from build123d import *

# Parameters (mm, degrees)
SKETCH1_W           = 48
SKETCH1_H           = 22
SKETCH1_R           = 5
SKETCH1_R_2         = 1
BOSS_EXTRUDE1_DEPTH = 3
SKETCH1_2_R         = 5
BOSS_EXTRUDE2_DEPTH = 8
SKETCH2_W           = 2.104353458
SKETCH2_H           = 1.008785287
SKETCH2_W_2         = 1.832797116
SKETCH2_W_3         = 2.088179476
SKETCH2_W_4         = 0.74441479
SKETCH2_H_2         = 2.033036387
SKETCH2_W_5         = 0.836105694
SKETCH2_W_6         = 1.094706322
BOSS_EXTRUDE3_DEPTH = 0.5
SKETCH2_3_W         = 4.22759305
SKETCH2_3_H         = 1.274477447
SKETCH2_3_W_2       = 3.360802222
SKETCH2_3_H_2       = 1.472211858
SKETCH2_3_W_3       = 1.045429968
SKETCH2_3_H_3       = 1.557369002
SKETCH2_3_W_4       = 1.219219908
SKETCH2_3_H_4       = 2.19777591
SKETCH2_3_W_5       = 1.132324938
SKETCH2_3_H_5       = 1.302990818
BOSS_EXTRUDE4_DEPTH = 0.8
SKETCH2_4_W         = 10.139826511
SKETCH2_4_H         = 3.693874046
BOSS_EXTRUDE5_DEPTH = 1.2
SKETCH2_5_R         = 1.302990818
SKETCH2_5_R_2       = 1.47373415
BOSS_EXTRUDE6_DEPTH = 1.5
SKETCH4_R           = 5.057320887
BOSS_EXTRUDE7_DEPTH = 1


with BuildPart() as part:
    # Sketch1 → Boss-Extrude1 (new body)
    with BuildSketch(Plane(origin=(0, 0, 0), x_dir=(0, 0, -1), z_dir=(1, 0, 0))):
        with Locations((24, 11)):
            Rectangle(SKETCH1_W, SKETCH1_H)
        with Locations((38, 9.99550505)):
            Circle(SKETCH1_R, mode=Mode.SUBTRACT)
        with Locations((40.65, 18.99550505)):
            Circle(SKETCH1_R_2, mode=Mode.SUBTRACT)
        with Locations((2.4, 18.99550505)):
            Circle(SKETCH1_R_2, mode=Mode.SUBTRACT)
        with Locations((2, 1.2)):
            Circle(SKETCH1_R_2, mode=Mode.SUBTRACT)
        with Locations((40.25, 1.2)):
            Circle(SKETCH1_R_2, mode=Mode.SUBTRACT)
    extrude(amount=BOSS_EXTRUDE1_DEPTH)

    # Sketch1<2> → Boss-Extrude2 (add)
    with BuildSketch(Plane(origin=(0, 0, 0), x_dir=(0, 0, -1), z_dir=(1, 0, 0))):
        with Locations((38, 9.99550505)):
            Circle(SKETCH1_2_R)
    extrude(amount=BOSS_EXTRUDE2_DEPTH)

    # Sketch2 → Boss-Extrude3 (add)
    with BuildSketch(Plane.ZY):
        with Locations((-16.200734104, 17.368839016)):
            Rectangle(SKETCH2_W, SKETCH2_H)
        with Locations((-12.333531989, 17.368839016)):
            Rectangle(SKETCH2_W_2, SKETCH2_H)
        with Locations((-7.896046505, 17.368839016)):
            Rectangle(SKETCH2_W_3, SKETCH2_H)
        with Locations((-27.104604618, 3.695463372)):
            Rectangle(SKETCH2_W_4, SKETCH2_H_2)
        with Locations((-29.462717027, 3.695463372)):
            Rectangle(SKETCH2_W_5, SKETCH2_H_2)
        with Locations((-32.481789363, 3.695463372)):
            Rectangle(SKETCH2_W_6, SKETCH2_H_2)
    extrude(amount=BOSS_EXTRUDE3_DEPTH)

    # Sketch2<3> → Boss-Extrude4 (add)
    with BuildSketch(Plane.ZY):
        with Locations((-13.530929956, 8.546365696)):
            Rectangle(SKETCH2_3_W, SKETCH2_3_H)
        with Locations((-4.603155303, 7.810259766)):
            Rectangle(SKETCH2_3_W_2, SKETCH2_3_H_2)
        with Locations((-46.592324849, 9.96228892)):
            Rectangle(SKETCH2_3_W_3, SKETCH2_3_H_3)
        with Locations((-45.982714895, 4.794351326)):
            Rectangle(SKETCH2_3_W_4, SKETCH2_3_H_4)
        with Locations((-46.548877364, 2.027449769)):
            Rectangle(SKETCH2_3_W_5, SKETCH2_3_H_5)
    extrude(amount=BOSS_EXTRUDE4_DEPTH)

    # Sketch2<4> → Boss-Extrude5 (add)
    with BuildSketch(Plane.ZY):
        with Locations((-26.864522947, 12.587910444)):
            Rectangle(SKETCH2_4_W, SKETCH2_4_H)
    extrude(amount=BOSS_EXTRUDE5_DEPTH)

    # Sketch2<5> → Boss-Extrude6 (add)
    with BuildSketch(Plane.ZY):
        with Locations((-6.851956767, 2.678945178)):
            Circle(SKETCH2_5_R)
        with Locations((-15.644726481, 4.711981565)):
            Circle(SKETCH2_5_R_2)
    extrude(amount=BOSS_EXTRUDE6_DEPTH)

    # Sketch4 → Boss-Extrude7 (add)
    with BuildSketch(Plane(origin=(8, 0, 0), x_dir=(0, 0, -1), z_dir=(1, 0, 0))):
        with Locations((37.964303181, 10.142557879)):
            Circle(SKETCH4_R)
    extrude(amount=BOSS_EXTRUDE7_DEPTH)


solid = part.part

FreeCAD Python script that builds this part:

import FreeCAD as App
import Part
import Sketcher

V = App.Vector
Q = App.Units.Quantity


def add_polygon(sketch, points):
    """Adds a closed chain of lines whose ends are joined by coincident constraints."""
    first, n = sketch.GeometryCount, len(points)
    for a, b in zip(points, points[1:] + points[:1]):
        sketch.addGeometry(Part.LineSegment(App.Vector(*a, 0), App.Vector(*b, 0)), False)
    for i in range(n):
        sketch.addConstraint(Sketcher.Constraint("Coincident", first + i, 2, first + (i + 1) % n, 1))

doc = App.newDocument("Part")
params = doc.addObject("Spreadsheet::Sheet", "Params")
for row, (alias, value) in enumerate([
    ("sketch1_diameter", "2 mm"),
    ("sketch1_diameter2", "10 mm"),
    ("sketch1_width", "22 mm"),
    ("sketch1_height", "48 mm"),
    ("pad1_length", "3 mm"),
    ("sketch2_diameter", "10 mm"),
    ("pad2_length", "8 mm"),
    ("pad3_length", "0.5 mm"),
    ("pad4_length", "0.8 mm"),
    ("pad5_length", "1.2 mm"),
    ("pad6_length", "1.5 mm"),
    ("pad7_length", "1 mm"),
], start=1):
    params.set(f"A{row}", alias)
    params.set(f"B{row}", "=" + value)
    params.setAlias(f"B{row}", alias)

body = doc.addObject("PartDesign::Body", "Body")

# Sketch on YZ plane
sketch1 = doc.addObject("Sketcher::SketchObject", "Sketch")
body.addObject(sketch1)
sketch1.AttachmentSupport = (doc.YZ_Plane, [""])
sketch1.MapMode = "FlatFace"
add_polygon(sketch1, [(22, 0), (0, 0), (0, -48), (22, -48)])  # lines 0-3
sketch1.addGeometry(Part.Circle(V(1.2, -2, 0), V(0, 0, 1), 1), False)  # 4
sketch1.addGeometry(Part.Circle(V(1.2, -40.2, 0), V(0, 0, 1), 1), False)  # 5
sketch1.addGeometry(Part.Circle(V(10, -38, 0), V(0, 0, 1), 5), False)  # 6
sketch1.addGeometry(Part.Circle(V(19, -2.4, 0), V(0, 0, 1), 1), False)  # 7
sketch1.addGeometry(Part.Circle(V(19, -40.6, 0), V(0, 0, 1), 1), False)  # 8
sketch1.addConstraint(Sketcher.Constraint("Horizontal", 0))
sketch1.addConstraint(Sketcher.Constraint("Vertical", 1))
sketch1.addConstraint(Sketcher.Constraint("Horizontal", 2))
sketch1.addConstraint(Sketcher.Constraint("Vertical", 3))
sketch1.addConstraint(Sketcher.Constraint("Coincident", 0, 2, -1, 1))
sketch1.addConstraint(Sketcher.Constraint("Equal", 4, 5))
sketch1.addConstraint(Sketcher.Constraint("Equal", 5, 7))
sketch1.addConstraint(Sketcher.Constraint("Equal", 7, 8))
sketch1.addConstraint(Sketcher.Constraint("Vertical", 4, 3, 5, 3))
sketch1.addConstraint(Sketcher.Constraint("Vertical", 7, 3, 8, 3))
sketch1.addConstraint(Sketcher.Constraint("Diameter", 4, Q("2 mm")))
sketch1.addConstraint(Sketcher.Constraint("Diameter", 6, Q("10 mm")))
sketch1.addConstraint(Sketcher.Constraint("DistanceX", 0, 2, 0, 1, Q("22 mm")))
sketch1.addConstraint(Sketcher.Constraint("DistanceY", 1, 2, 1, 1, Q("48 mm")))
sketch1.addConstraint(Sketcher.Constraint("DistanceY", 4, 3, -1, 1, Q("2 mm")))
sketch1.addConstraint(Sketcher.Constraint("DistanceY", 6, 3, -1, 1, Q("38 mm")))
sketch1.addConstraint(Sketcher.Constraint("DistanceX", 6, 3, 7, 3, Q("9 mm")))
sketch1.addConstraint(Sketcher.Constraint("DistanceX", -1, 1, 4, 3, Q("1.2 mm")))
sketch1.addConstraint(Sketcher.Constraint("DistanceY", 7, 3, -1, 1, Q("2.4 mm")))
sketch1.addConstraint(Sketcher.Constraint("DistanceY", 8, 3, 5, 3, Q("0.4 mm")))
sketch1.addConstraint(Sketcher.Constraint("DistanceY", 5, 3, -1, 1, Q("40.25 mm")))
sketch1.addConstraint(Sketcher.Constraint("DistanceX", -1, 1, 6, 3, Q("9.995505 mm")))
sketch1.setExpression("Constraints[14]", "Params.sketch1_diameter")
sketch1.setExpression("Constraints[15]", "Params.sketch1_diameter2")
sketch1.setExpression("Constraints[16]", "Params.sketch1_width")
sketch1.setExpression("Constraints[17]", "Params.sketch1_height")
pad1 = doc.addObject("PartDesign::Pad", "Pad")
body.addObject(pad1)
pad1.Profile = sketch1
pad1.setExpression("Length", "Params.pad1_length")

# Sketch on YZ plane
sketch2 = doc.addObject("Sketcher::SketchObject", "Sketch001")
body.addObject(sketch2)
sketch2.AttachmentSupport = (doc.YZ_Plane, [""])
sketch2.MapMode = "FlatFace"
sketch2.addGeometry(Part.Circle(V(10, -38, 0), V(0, 0, 1), 5), False)
sketch2.addConstraint(Sketcher.Constraint("Diameter", 0, Q("10 mm")))
sketch2.addConstraint(Sketcher.Constraint("DistanceY", 0, 3, -1, 1, Q("38 mm")))
sketch2.addConstraint(Sketcher.Constraint("DistanceX", -1, 1, 0, 3, Q("9.995505 mm")))
sketch2.setExpression("Constraints[0]", "Params.sketch2_diameter")
pad2 = doc.addObject("PartDesign::Pad", "Pad001")
body.addObject(pad2)
pad2.Profile = sketch2
pad2.setExpression("Length", "Params.pad2_length")

# Sketch on YZ plane
sketch3 = doc.addObject("Sketcher::SketchObject", "Sketch002")
body.addObject(sketch3)
sketch3.AttachmentSupport = (doc.YZ_Plane, [""])
sketch3.MapMode = "FlatFace"
add_polygon(sketch3, [(17.9, -17.3), (16.9, -17.3), (16.9, -15.1), (17.9, -15.1)])  # lines 0-3
add_polygon(sketch3, [(17.9, -13.2), (16.9, -13.2), (16.9, -11.4), (17.9, -11.4)])  # lines 4-7
add_polygon(sketch3, [(17.9, -8.9), (16.9, -8.9), (16.9, -6.9), (17.9, -6.9)])  # lines 8-11
add_polygon(sketch3, [(4.7, -27.5), (2.7, -27.5), (2.7, -26.7), (4.7, -26.7)])  # lines 12-15
add_polygon(sketch3, [(4.7, -29.9), (2.7, -29.9), (2.7, -29), (4.7, -29)])  # lines 16-19
add_polygon(sketch3, [(4.7, -33), (2.7, -33), (2.7, -31.9), (4.7, -31.9)])  # lines 20-23
sketch3.addConstraint(Sketcher.Constraint("Horizontal", 0))
sketch3.addConstraint(Sketcher.Constraint("Vertical", 1))
sketch3.addConstraint(Sketcher.Constraint("Horizontal", 2))
sketch3.addConstraint(Sketcher.Constraint("Vertical", 3))
sketch3.addConstraint(Sketcher.Constraint("Horizontal", 4))
sketch3.addConstraint(Sketcher.Constraint("Vertical", 5))
sketch3.addConstraint(Sketcher.Constraint("Horizontal", 6))
sketch3.addConstraint(Sketcher.Constraint("Vertical", 7))
sketch3.addConstraint(Sketcher.Constraint("Horizontal", 8))
sketch3.addConstraint(Sketcher.Constraint("Vertical", 9))
sketch3.addConstraint(Sketcher.Constraint("Horizontal", 10))
sketch3.addConstraint(Sketcher.Constraint("Vertical", 11))
sketch3.addConstraint(Sketcher.Constraint("Horizontal", 12))
sketch3.addConstraint(Sketcher.Constraint("Vertical", 13))
sketch3.addConstraint(Sketcher.Constraint("Horizontal", 14))
sketch3.addConstraint(Sketcher.Constraint("Vertical", 15))
sketch3.addConstraint(Sketcher.Constraint("Horizontal", 16))
sketch3.addConstraint(Sketcher.Constraint("Vertical", 17))
sketch3.addConstraint(Sketcher.Constraint("Horizontal", 18))
sketch3.addConstraint(Sketcher.Constraint("Vertical", 19))
sketch3.addConstraint(Sketcher.Constraint("Horizontal", 20))
sketch3.addConstraint(Sketcher.Constraint("Vertical", 21))
sketch3.addConstraint(Sketcher.Constraint("Horizontal", 22))
sketch3.addConstraint(Sketcher.Constraint("Vertical", 23))
sketch3.addConstraint(Sketcher.Constraint("Vertical", 1, 2, 4, 2))
sketch3.addConstraint(Sketcher.Constraint("Vertical", 3, 2, 6, 2))
sketch3.addConstraint(Sketcher.Constraint("Vertical", 5, 2, 8, 2))
sketch3.addConstraint(Sketcher.Constraint("Vertical", 7, 2, 10, 2))
sketch3.addConstraint(Sketcher.Constraint("Vertical", 13, 2, 16, 2))
sketch3.addConstraint(Sketcher.Constraint("Vertical", 15, 2, 18, 2))
sketch3.addConstraint(Sketcher.Constraint("Vertical", 17, 2, 20, 2))
sketch3.addConstraint(Sketcher.Constraint("Vertical", 19, 2, 22, 2))
sketch3.addConstraint(Sketcher.Constraint("DistanceY", 9, 1, 9, 2, Q("2.088179 mm")))
sketch3.addConstraint(Sketcher.Constraint("DistanceX", 12, 2, 0, 2, Q("14.185501 mm")))
sketch3.addConstraint(Sketcher.Constraint("DistanceY", 12, 2, 0, 2, Q("10.223901 mm")))
sketch3.addConstraint(Sketcher.Constraint("DistanceX", 0, 2, 0, 1, Q("1.008785 mm")))
sketch3.addConstraint(Sketcher.Constraint("DistanceX", 12, 2, 12, 1, Q("2.033036 mm")))
sketch3.addConstraint(Sketcher.Constraint("DistanceY", 1, 1, 1, 2, Q("2.104353 mm")))
sketch3.addConstraint(Sketcher.Constraint("DistanceY", 5, 1, 5, 2, Q("1.832797 mm")))
sketch3.addConstraint(Sketcher.Constraint("DistanceY", 13, 1, 13, 2, Q("0.744415 mm")))
sketch3.addConstraint(Sketcher.Constraint("DistanceY", 17, 1, 17, 2, Q("0.836106 mm")))
sketch3.addConstraint(Sketcher.Constraint("DistanceY", 21, 1, 21, 2, Q("1.094706 mm")))
sketch3.addConstraint(Sketcher.Constraint("DistanceY", 0, 2, -1, 1, Q("17.252911 mm")))
sketch3.addConstraint(Sketcher.Constraint("DistanceX", -1, 1, 2, 2, Q("17.873232 mm")))
sketch3.addConstraint(Sketcher.Constraint("DistanceY", 4, 2, -1, 1, Q("13.249931 mm")))
sketch3.addConstraint(Sketcher.Constraint("DistanceY", 16, 2, -1, 1, Q("29.88077 mm")))
sketch3.addConstraint(Sketcher.Constraint("DistanceY", 1, 2, 8, 2, Q("6.208421 mm")))
sketch3.addConstraint(Sketcher.Constraint("DistanceY", 20, 2, 17, 2, Q("3.984478 mm")))
pad3 = doc.addObject("PartDesign::Pad", "Pad002")
body.addObject(pad3)
pad3.Profile = sketch3
pad3.setExpression("Length", "Params.pad3_length")
pad3.Reversed = True

# Sketch on YZ plane
sketch4 = doc.addObject("Sketcher::SketchObject", "Sketch003")
body.addObject(sketch4)
sketch4.AttachmentSupport = (doc.YZ_Plane, [""])
sketch4.MapMode = "FlatFace"
add_polygon(sketch4, [(9.2, -15.6), (7.9, -15.6), (7.9, -11.4), (9.2, -11.4)])  # lines 0-3
add_polygon(sketch4, [(8.5, -6.3), (7.1, -6.3), (7.1, -2.9), (8.5, -2.9)])  # lines 4-7
add_polygon(sketch4, [(10.7, -47.1), (9.2, -47.1), (9.2, -46.1), (10.7, -46.1)])  # lines 8-11
add_polygon(sketch4, [(5.9, -46.6), (3.7, -46.6), (3.7, -45.4), (5.9, -45.4)])  # lines 12-15
add_polygon(sketch4, [(2.7, -47.1), (1.4, -47.1), (1.4, -46), (2.7, -46)])  # lines 16-19
sketch4.addConstraint(Sketcher.Constraint("Horizontal", 0))
sketch4.addConstraint(Sketcher.Constraint("Vertical", 1))
sketch4.addConstraint(Sketcher.Constraint("Horizontal", 2))
sketch4.addConstraint(Sketcher.Constraint("Vertical", 3))
sketch4.addConstraint(Sketcher.Constraint("Horizontal", 4))
sketch4.addConstraint(Sketcher.Constraint("Vertical", 5))
sketch4.addConstraint(Sketcher.Constraint("Horizontal", 6))
sketch4.addConstraint(Sketcher.Constraint("Vertical", 7))
sketch4.addConstraint(Sketcher.Constraint("Horizontal", 8))
sketch4.addConstraint(Sketcher.Constraint("Vertical", 9))
sketch4.addConstraint(Sketcher.Constraint("Horizontal", 10))
sketch4.addConstraint(Sketcher.Constraint("Vertical", 11))
sketch4.addConstraint(Sketcher.Constraint("Horizontal", 12))
sketch4.addConstraint(Sketcher.Constraint("Vertical", 13))
sketch4.addConstraint(Sketcher.Constraint("Horizontal", 14))
sketch4.addConstraint(Sketcher.Constraint("Vertical", 15))
sketch4.addConstraint(Sketcher.Constraint("Horizontal", 16))
sketch4.addConstraint(Sketcher.Constraint("Vertical", 17))
sketch4.addConstraint(Sketcher.Constraint("Horizontal", 18))
sketch4.addConstraint(Sketcher.Constraint("Vertical", 19))
sketch4.addConstraint(Sketcher.Constraint("Horizontal", 11, 2, 16, 2))
sketch4.addConstraint(Sketcher.Constraint("Vertical", 3, 2, 8, 2))
sketch4.addConstraint(Sketcher.Constraint("DistanceX", 4, 2, 4, 1, Q("1.472212 mm")))
sketch4.addConstraint(Sketcher.Constraint("DistanceX", 8, 2, 8, 1, Q("1.557369 mm")))
sketch4.addConstraint(Sketcher.Constraint("DistanceX", 16, 2, 16, 1, Q("1.302991 mm")))
sketch4.addConstraint(Sketcher.Constraint("DistanceY", 9, 1, 9, 2, Q("1.04543 mm")))
sketch4.addConstraint(Sketcher.Constraint("DistanceY", 13, 1, 13, 2, Q("1.21922 mm")))
sketch4.addConstraint(Sketcher.Constraint("DistanceY", 12, 2, 0, 2, Q("30.947598 mm")))
sketch4.addConstraint(Sketcher.Constraint("DistanceX", 0, 2, 0, 1, Q("1.274477 mm")))
sketch4.addConstraint(Sketcher.Constraint("DistanceX", 12, 2, 12, 1, Q("2.197776 mm")))
sketch4.addConstraint(Sketcher.Constraint("DistanceY", 1, 1, 1, 2, Q("4.227593 mm")))
sketch4.addConstraint(Sketcher.Constraint("DistanceY", 5, 1, 5, 2, Q("3.360802 mm")))
sketch4.addConstraint(Sketcher.Constraint("DistanceY", 17, 1, 17, 2, Q("1.132325 mm")))
sketch4.addConstraint(Sketcher.Constraint("DistanceY", 8, 2, -1, 1, Q("47.11504 mm")))
sketch4.addConstraint(Sketcher.Constraint("DistanceX", -1, 1, 14, 2, Q("5.893239 mm")))
sketch4.addConstraint(Sketcher.Constraint("DistanceX", 4, 2, 2, 2, Q("2.109451 mm")))
sketch4.addConstraint(Sketcher.Constraint("DistanceY", 0, 2, 4, 2, Q("9.36117 mm")))
sketch4.addConstraint(Sketcher.Constraint("DistanceX", 12, 2, 8, 2, Q("5.488141 mm")))
sketch4.addConstraint(Sketcher.Constraint("DistanceX", 16, 2, 12, 2, Q("2.319509 mm")))
sketch4.addConstraint(Sketcher.Constraint("DistanceY", 12, 2, 17, 2, Q("0.60961 mm")))
pad4 = doc.addObject("PartDesign::Pad", "Pad003")
body.addObject(pad4)
pad4.Profile = sketch4
pad4.setExpression("Length", "Params.pad4_length")
pad4.Reversed = True

# Sketch on YZ plane
sketch5 = doc.addObject("Sketcher::SketchObject", "Sketch004")
body.addObject(sketch5)
sketch5.AttachmentSupport = (doc.YZ_Plane, [""])
sketch5.MapMode = "FlatFace"
add_polygon(sketch5, [(14.4, -31.9), (10.7, -31.9), (10.7, -21.8), (14.4, -21.8)])  # lines 0-3
sketch5.addConstraint(Sketcher.Constraint("Horizontal", 0))
sketch5.addConstraint(Sketcher.Constraint("Vertical", 1))
sketch5.addConstraint(Sketcher.Constraint("Horizontal", 2))
sketch5.addConstraint(Sketcher.Constraint("Vertical", 3))
sketch5.addConstraint(Sketcher.Constraint("DistanceX", 0, 2, 0, 1, Q("3.693874 mm")))
sketch5.addConstraint(Sketcher.Constraint("DistanceY", 1, 1, 1, 2, Q("10.139827 mm")))
sketch5.addConstraint(Sketcher.Constraint("DistanceY", 1, 2, -1, 1, Q("21.79461 mm")))
sketch5.addConstraint(Sketcher.Constraint("DistanceX", -1, 1, 0, 2, Q("10.740973 mm")))
pad5 = doc.addObject("PartDesign::Pad", "Pad004")
body.addObject(pad5)
pad5.Profile = sketch5
pad5.setExpression("Length", "Params.pad5_length")
pad5.Reversed = True

# Sketch on YZ plane
sketch6 = doc.addObject("Sketcher::SketchObject", "Sketch005")
body.addObject(sketch6)
sketch6.AttachmentSupport = (doc.YZ_Plane, [""])
sketch6.MapMode = "FlatFace"
sketch6.addGeometry(Part.Circle(V(2.7, -6.9, 0), V(0, 0, 1), 1.3), False)
sketch6.addGeometry(Part.Circle(V(4.7, -15.6, 0), V(0, 0, 1), 1.5), False)
sketch6.addConstraint(Sketcher.Constraint("Diameter", 0, Q("2.605982 mm")))
sketch6.addConstraint(Sketcher.Constraint("Diameter", 1, Q("2.947468 mm")))
sketch6.addConstraint(Sketcher.Constraint("DistanceX", -1, 1, 1, 3, Q("4.711982 mm")))
sketch6.addConstraint(Sketcher.Constraint("DistanceY", 1, 3, 0, 3, Q("8.79277 mm")))
sketch6.addConstraint(Sketcher.Constraint("DistanceX", -1, 1, 0, 3, Q("2.678945 mm")))
sketch6.addConstraint(Sketcher.Constraint("DistanceY", 0, 3, -1, 1, Q("6.851957 mm")))
pad6 = doc.addObject("PartDesign::Pad", "Pad005")
body.addObject(pad6)
pad6.Profile = sketch6
pad6.setExpression("Length", "Params.pad6_length")
pad6.Reversed = True

# Sketch on YZ plane
sketch7 = doc.addObject("Sketcher::SketchObject", "Sketch006")
body.addObject(sketch7)
sketch7.AttachmentSupport = (doc.YZ_Plane, [""])
sketch7.MapMode = "FlatFace"
sketch7.AttachmentOffset = App.Placement(V(0, 0, 8), App.Rotation())
sketch7.addGeometry(Part.Circle(V(10, -38, 0), V(0, 0, 1), 5), False)
sketch7.addConstraint(Sketcher.Constraint("Diameter", 0, Q("10.114642 mm")))
sketch7.addConstraint(Sketcher.Constraint("DistanceX", -1, 1, 0, 3, Q("10.142558 mm")))
sketch7.addConstraint(Sketcher.Constraint("DistanceY", 0, 3, -1, 1, Q("37.964303 mm")))
pad7 = doc.addObject("PartDesign::Pad", "Pad006")
body.addObject(pad7)
pad7.Profile = sketch7
pad7.setExpression("Length", "Params.pad7_length")

doc.recompute()
